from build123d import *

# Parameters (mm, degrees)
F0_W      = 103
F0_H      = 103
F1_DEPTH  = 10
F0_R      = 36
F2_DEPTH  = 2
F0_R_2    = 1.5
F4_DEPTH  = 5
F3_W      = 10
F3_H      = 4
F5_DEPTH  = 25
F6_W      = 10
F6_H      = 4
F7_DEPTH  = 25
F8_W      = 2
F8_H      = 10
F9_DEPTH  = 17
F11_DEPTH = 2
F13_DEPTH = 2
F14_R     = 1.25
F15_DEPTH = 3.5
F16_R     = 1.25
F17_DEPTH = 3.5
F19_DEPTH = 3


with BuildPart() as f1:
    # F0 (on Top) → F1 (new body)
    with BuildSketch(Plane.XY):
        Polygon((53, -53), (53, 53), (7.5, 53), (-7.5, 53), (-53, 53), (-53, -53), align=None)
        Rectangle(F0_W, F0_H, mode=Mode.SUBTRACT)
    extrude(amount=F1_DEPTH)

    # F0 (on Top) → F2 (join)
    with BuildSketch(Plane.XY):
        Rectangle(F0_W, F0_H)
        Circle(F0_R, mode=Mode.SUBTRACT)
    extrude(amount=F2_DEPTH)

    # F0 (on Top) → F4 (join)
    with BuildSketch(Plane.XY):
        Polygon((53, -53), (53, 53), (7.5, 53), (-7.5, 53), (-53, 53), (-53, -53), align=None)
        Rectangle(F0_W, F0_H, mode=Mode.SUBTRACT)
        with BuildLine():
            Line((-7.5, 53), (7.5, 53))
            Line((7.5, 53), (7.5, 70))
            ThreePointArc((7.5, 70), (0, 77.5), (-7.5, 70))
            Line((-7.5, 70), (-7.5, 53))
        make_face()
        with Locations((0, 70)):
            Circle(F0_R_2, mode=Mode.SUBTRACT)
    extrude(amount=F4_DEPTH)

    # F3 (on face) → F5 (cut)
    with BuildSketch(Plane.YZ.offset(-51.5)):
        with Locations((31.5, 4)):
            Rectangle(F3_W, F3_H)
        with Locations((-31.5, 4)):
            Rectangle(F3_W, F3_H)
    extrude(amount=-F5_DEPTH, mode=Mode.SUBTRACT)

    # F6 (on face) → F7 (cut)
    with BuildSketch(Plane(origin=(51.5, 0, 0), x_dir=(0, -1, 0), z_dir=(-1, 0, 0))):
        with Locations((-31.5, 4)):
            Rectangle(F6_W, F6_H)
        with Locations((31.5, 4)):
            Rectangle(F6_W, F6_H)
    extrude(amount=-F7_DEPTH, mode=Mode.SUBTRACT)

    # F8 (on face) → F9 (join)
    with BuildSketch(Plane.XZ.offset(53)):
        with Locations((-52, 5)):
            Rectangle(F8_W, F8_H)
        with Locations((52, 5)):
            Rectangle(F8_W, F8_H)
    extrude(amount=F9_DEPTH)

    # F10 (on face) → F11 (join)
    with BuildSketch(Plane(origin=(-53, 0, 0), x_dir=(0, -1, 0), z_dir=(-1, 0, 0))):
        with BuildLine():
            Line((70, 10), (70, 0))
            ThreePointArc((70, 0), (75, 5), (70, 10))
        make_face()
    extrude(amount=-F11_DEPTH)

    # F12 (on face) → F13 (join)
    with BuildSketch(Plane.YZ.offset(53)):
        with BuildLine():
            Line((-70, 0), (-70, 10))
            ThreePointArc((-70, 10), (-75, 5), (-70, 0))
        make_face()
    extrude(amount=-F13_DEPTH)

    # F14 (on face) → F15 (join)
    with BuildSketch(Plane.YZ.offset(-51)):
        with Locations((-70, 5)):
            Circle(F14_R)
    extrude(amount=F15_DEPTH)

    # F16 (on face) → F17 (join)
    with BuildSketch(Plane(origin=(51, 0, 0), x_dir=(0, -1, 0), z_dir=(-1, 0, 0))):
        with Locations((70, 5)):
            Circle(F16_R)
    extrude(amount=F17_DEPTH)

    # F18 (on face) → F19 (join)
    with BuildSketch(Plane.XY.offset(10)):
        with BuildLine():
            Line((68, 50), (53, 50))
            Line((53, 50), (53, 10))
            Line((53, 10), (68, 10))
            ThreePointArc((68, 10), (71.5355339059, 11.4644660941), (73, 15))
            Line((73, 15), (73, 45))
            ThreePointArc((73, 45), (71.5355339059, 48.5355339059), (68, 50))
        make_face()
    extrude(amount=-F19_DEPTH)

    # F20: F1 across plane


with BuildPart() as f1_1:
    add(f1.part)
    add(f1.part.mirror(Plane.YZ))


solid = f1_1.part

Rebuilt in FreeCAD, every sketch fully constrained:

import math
import FreeCAD as App
import Part
import Sketcher
Q = App.Units.Quantity


def add_polygon(sketch, points):
    """Adds a closed chain of lines whose ends are joined by coincident constraints."""
    first, n = sketch.GeometryCount, len(points)
    for a, b in zip(points, points[1:] + points[:1]):
        sketch.addGeometry(Part.LineSegment(App.Vector(*a, 0), App.Vector(*b, 0)), False)
    for i in range(n):
        sketch.addConstraint(Sketcher.Constraint("Coincident", first + i, 2, first + (i + 1) % n, 1))

doc = App.newDocument("Part")
params = doc.addObject("Spreadsheet::Sheet", "Params")
for row, (alias, value) in enumerate([
    ("sketch1_width", "106 mm"),
    ("sketch1_width2", "103 mm"),
    ("pad1_length", "10 mm"),
    ("sketch2_diameter", "72 mm"),
    ("sketch2_width", "103 mm"),
    ("pad2_length", "2 mm"),
    ("sketch3_diameter", "3 mm"),
    ("sketch3_radius", "7.5 mm"),
    ("sketch3_width", "106 mm"),
    ("sketch3_width2", "103 mm"),
    ("sketch3_height", "17 mm"),
    ("pad3_length", "5 mm"),
    ("sketch4_width", "10 mm"),
    ("sketch4_height", "4 mm"),
    ("pocket1_length", "25 mm"),
    ("sketch5_width", "10 mm"),
    ("sketch5_height", "4 mm"),
    ("pocket2_length", "25 mm"),
    ("sketch6_width", "2 mm"),
    ("sketch6_height", "10 mm"),
    ("pad4_length", "17 mm"),
    ("sketch7_radius", "5 mm"),
    ("pad5_length", "2 mm"),
    ("sketch8_radius", "5 mm"),
    ("pad6_length", "2 mm"),
    ("sketch9_diameter", "2.5 mm"),
    ("pad7_length", "3.5 mm"),
    ("sketch10_diameter", "2.5 mm"),
    ("pad8_length", "3.5 mm"),
    ("sketch11_radius", "5 mm"),
    ("sketch11_width", "15 mm"),
    ("sketch11_height", "40 mm"),
    ("pad9_length", "3 mm"),
], start=1):
    params.set(f"A{row}", alias)
    params.set(f"B{row}", "=" + value)
    params.setAlias(f"B{row}", alias)

body = doc.addObject("PartDesign::Body", "Body")

sketch1 = doc.addObject("Sketcher::SketchObject", "Sketch")
body.addObject(sketch1)
sketch1.AttachmentSupport = (doc.XY_Plane, [""])
sketch1.MapMode = "FlatFace"
add_polygon(sketch1, [(53, -53), (53, 53), (-53, 53), (-53, -53)])
add_polygon(sketch1, [(51.5, -51.5), (-51.5, -51.5), (-51.5, 51.5), (51.5, 51.5)])
sketch1.addConstraint([
    Sketcher.Constraint("Vertical", 0),
    Sketcher.Constraint("Horizontal", 1),
    Sketcher.Constraint("Vertical", 2),
    Sketcher.Constraint("Horizontal", 3),
    Sketcher.Constraint("Horizontal", 4),
    Sketcher.Constraint("Vertical", 5),
    Sketcher.Constraint("Horizontal", 6),
    Sketcher.Constraint("Vertical", 7),
    Sketcher.Constraint("Symmetric", 0, 2, 2, 2, -1, 1),
    Sketcher.Constraint("Symmetric", 4, 2, 6, 2, -1, 1),
    Sketcher.Constraint("Equal", 3, 0),
    Sketcher.Constraint("Equal", 6, 5),
    Sketcher.Constraint("DistanceX", 1, 2, 1, 1, Q("106 mm")),
    Sketcher.Constraint("DistanceX", 4, 2, 4, 1, Q("103 mm")),
])
sketch1.setExpression("Constraints[20]", "Params.sketch1_width")
sketch1.setExpression("Constraints[21]", "Params.sketch1_width2")
pad1 = doc.addObject("PartDesign::Pad", "Pad")
body.addObject(pad1)
pad1.Profile = sketch1
pad1.setExpression("Length", "Params.pad1_length")

sketch2 = doc.addObject("Sketcher::SketchObject", "Sketch001")
body.addObject(sketch2)
sketch2.AttachmentSupport = (doc.XY_Plane, [""])
sketch2.MapMode = "FlatFace"
add_polygon(sketch2, [(-51.5, 51.5), (-51.5, -51.5), (51.5, -51.5), (51.5, 51.5)])
sketch2.addGeometry(Part.Circle(App.Vector(0, 0, 0), App.Vector(0, 0, 1), 36), False)
sketch2.addConstraint([
    Sketcher.Constraint("Vertical", 0),
    Sketcher.Constraint("Horizontal", 1),
    Sketcher.Constraint("Vertical", 2),
    Sketcher.Constraint("Horizontal", 3),
    Sketcher.Constraint("Coincident", 4, 3, -1, 1),
    Sketcher.Constraint("Symmetric", 0, 2, 2, 2, -1, 1),
    Sketcher.Constraint("Equal", 3, 0),
    Sketcher.Constraint("Diameter", 4, Q("72 mm")),
    Sketcher.Constraint("DistanceX", 1, 1, 1, 2, Q("103 mm")),
])
sketch2.setExpression("Constraints[11]", "Params.sketch2_diameter")
sketch2.setExpression("Constraints[12]", "Params.sketch2_width")
pad2 = doc.addObject("PartDesign::Pad", "Pad001")
body.addObject(pad2)
pad2.Profile = sketch2
pad2.setExpression("Length", "Params.pad2_length")

sketch3 = doc.addObject("Sketcher::SketchObject", "Sketch002")
body.addObject(sketch3)
sketch3.AttachmentSupport = (doc.XY_Plane, [""])
sketch3.MapMode = "FlatFace"
sketch3.addGeometry(Part.LineSegment(App.Vector(53, -53, 0), App.Vector(53, 53, 0)), False)
sketch3.addGeometry(Part.LineSegment(App.Vector(53, 53, 0), App.Vector(7.5, 53, 0)), False)
sketch3.addGeometry(Part.LineSegment(App.Vector(7.5, 53, 0), App.Vector(7.5, 70, 0)), False)
sketch3.addGeometry(Part.ArcOfCircle(Part.Circle(App.Vector(0, 70, 0), App.Vector(0, 0, 1), 7.5), math.radians(0), math.radians(180)), False)
sketch3.addGeometry(Part.LineSegment(App.Vector(-7.5, 70, 0), App.Vector(-7.5, 53, 0)), False)
sketch3.addGeometry(Part.LineSegment(App.Vector(-7.5, 53, 0), App.Vector(-53, 53, 0)), False)
sketch3.addGeometry(Part.LineSegment(App.Vector(-53, 53, 0), App.Vector(-53, -53, 0)), False)
sketch3.addGeometry(Part.LineSegment(App.Vector(-53, -53, 0), App.Vector(53, -53, 0)), False)
add_polygon(sketch3, [(51.5, -51.5), (-51.5, -51.5), (-51.5, 51.5), (51.5, 51.5)])
sketch3.addGeometry(Part.Circle(App.Vector(0, 70, 0), App.Vector(0, 0, 1), 1.5), False)
sketch3.addConstraint([
    Sketcher.Constraint("Coincident", 0, 2, 1, 1),
    Sketcher.Constraint("Coincident", 1, 2, 2, 1),
    Sketcher.Constraint("Tangent", 2, 2, 3, 1),
    Sketcher.Constraint("Tangent", 3, 2, 4, 1),
    Sketcher.Constraint("Coincident", 4, 2, 5, 1),
    Sketcher.Constraint("Coincident", 5, 2, 6, 1),
    Sketcher.Constraint("Coincident", 6, 2, 7, 1),
    Sketcher.Constraint("Coincident", 7, 2, 0, 1),
    Sketcher.Constraint("Vertical", 0),
    Sketcher.Constraint("Horizontal", 1),
    Sketcher.Constraint("Vertical", 2),
    Sketcher.Constraint("Vertical", 4),
    Sketcher.Constraint("Horizontal", 5),
    Sketcher.Constraint("Vertical", 6),
    Sketcher.Constraint("Horizontal", 7),
    Sketcher.Constraint("Horizontal", 8),
    Sketcher.Constraint("Vertical", 9),
    Sketcher.Constraint("Horizontal", 10),
    Sketcher.Constraint("Vertical", 11),
    Sketcher.Constraint("Coincident", 12, 3, 3, 3),
    Sketcher.Constraint("Symmetric", 0, 2, 6, 2, -1, 1),
    Sketcher.Constraint("Symmetric", 8, 2, 10, 2, -1, 1),
    Sketcher.Constraint("Symmetric", 1, 2, 4, 2, -2),
    Sketcher.Constraint("Equal", 7, 0),
    Sketcher.Constraint("Equal", 10, 9),
    Sketcher.Constraint("Diameter", 12, Q("3 mm")),
    Sketcher.Constraint("Radius", 3, Q("7.5 mm")),
    Sketcher.Constraint("DistanceX", 7, 1, 7, 2, Q("106 mm")),
    Sketcher.Constraint("DistanceX", 8, 2, 8, 1, Q("103 mm")),
    Sketcher.Constraint("DistanceY", 2, 1, 2, 2, Q("17 mm")),
])
sketch3.setExpression("Constraints[29]", "Params.sketch3_diameter")
sketch3.setExpression("Constraints[30]", "Params.sketch3_radius")
sketch3.setExpression("Constraints[31]", "Params.sketch3_width")
sketch3.setExpression("Constraints[32]", "Params.sketch3_width2")
sketch3.setExpression("Constraints[33]", "Params.sketch3_height")
pad3 = doc.addObject("PartDesign::Pad", "Pad002")
body.addObject(pad3)
pad3.Profile = sketch3
pad3.setExpression("Length", "Params.pad3_length")

sketch4 = doc.addObject("Sketcher::SketchObject", "Sketch003")
body.addObject(sketch4)
sketch4.AttachmentSupport = (doc.YZ_Plane, [""])
sketch4.MapMode = "FlatFace"
sketch4.AttachmentOffset = App.Placement(App.Vector(0, 0, -51.5), App.Rotation())
add_polygon(sketch4, [(26.5, 6), (26.5, 2), (36.5, 2), (36.5, 6)])
add_polygon(sketch4, [(-36.5, 6), (-36.5, 2), (-26.5, 2), (-26.5, 6)])
sketch4.addConstraint([
    Sketcher.Constraint("Vertical", 0),
    Sketcher.Constraint("Horizontal", 1),
    Sketcher.Constraint("Vertical", 2),
    Sketcher.Constraint("Horizontal", 3),
    Sketcher.Constraint("Vertical", 4),
    Sketcher.Constraint("Horizontal", 5),
    Sketcher.Constraint("Vertical", 6),
    Sketcher.Constraint("Horizontal", 7),
    Sketcher.Constraint("Symmetric", 1, 2, 4, 2, -2),
    Sketcher.Constraint("Symmetric", 3, 2, 6, 2, -2),
    Sketcher.Constraint("DistanceX", 1, 1, 1, 2, Q("10 mm")),
    Sketcher.Constraint("DistanceY", 0, 2, 0, 1, Q("4 mm")),
    Sketcher.Constraint("DistanceY", -1, 1, 0, 2, Q("2 mm")),
    Sketcher.Constraint("DistanceX", 4, 2, 0, 2, Q("63 mm")),
])
sketch4.setExpression("Constraints[18]", "Params.sketch4_width")
sketch4.setExpression("Constraints[19]", "Params.sketch4_height")
pocket1 = doc.addObject("PartDesign::Pocket", "Pocket")
body.addObject(pocket1)
pocket1.Profile = sketch4
pocket1.setExpression("Length", "Params.pocket1_length")

sketch5 = doc.addObject("Sketcher::SketchObject", "Sketch004")
body.addObject(sketch5)
sketch5.AttachmentSupport = (doc.YZ_Plane, [""])
sketch5.MapMode = "FlatFace"
sketch5.AttachmentOffset = App.Placement(App.Vector(0, 0, 51.5), App.Rotation())
add_polygon(sketch5, [(36.5, 6), (36.5, 2), (26.5, 2), (26.5, 6)])
add_polygon(sketch5, [(-26.5, 6), (-26.5, 2), (-36.5, 2), (-36.5, 6)])
sketch5.addConstraint([
    Sketcher.Constraint("Vertical", 0),
    Sketcher.Constraint("Horizontal", 1),
    Sketcher.Constraint("Vertical", 2),
    Sketcher.Constraint("Horizontal", 3),
    Sketcher.Constraint("Vertical", 4),
    Sketcher.Constraint("Horizontal", 5),
    Sketcher.Constraint("Vertical", 6),
    Sketcher.Constraint("Horizontal", 7),
    Sketcher.Constraint("Symmetric", 1, 2, 4, 2, -2),
    Sketcher.Constraint("Symmetric", 3, 2, 6, 2, -2),
    Sketcher.Constraint("DistanceX", 1, 2, 1, 1, Q("10 mm")),
    Sketcher.Constraint("DistanceY", 0, 2, 0, 1, Q("4 mm")),
    Sketcher.Constraint("DistanceY", -1, 1, 0, 2, Q("2 mm")),
    Sketcher.Constraint("DistanceX", 4, 2, 1, 2, Q("53 mm")),
])
sketch5.setExpression("Constraints[18]", "Params.sketch5_width")
sketch5.setExpression("Constraints[19]", "Params.sketch5_height")
pocket2 = doc.addObject("PartDesign::Pocket", "Pocket001")
body.addObject(pocket2)
pocket2.Profile = sketch5
pocket2.setExpression("Length", "Params.pocket2_length")
pocket2.Reversed = True

sketch6 = doc.addObject("Sketcher::SketchObject", "Sketch005")
body.addObject(sketch6)
sketch6.AttachmentSupport = (doc.XZ_Plane, [""])
sketch6.MapMode = "FlatFace"
sketch6.AttachmentOffset = App.Placement(App.Vector(0, 0, 53), App.Rotation())
add_polygon(sketch6, [(-53, 10), (-53, 0), (-51, 0), (-51, 10)])
add_polygon(sketch6, [(51, 10), (51, 0), (53, 0), (53, 10)])
sketch6.addConstraint([
    Sketcher.Constraint("Vertical", 0),
    Sketcher.Constraint("Horizontal", 1),
    Sketcher.Constraint("Vertical", 2),
    Sketcher.Constraint("Horizontal", 3),
    Sketcher.Constraint("Vertical", 4),
    Sketcher.Constraint("Horizontal", 5),
    Sketcher.Constraint("Vertical", 6),
    Sketcher.Constraint("Horizontal", 7),
    Sketcher.Constraint("Symmetric", 1, 2, 4, 2, -1, 1),
    Sketcher.Constraint("Symmetric", 0, 2, 5, 2, -2),
    Sketcher.Constraint("Horizontal", 3, 2, 6, 2),
    Sketcher.Constraint("DistanceX", 1, 1, 1, 2, Q("2 mm")),
    Sketcher.Constraint("DistanceY", 0, 2, 0, 1, Q("10 mm")),
    Sketcher.Constraint("DistanceX", 0, 2, -1, 1, Q("53 mm")),
])
sketch6.setExpression("Constraints[19]", "Params.sketch6_width")
sketch6.setExpression("Constraints[20]", "Params.sketch6_height")
pad4 = doc.addObject("PartDesign::Pad", "Pad003")
body.addObject(pad4)
pad4.Profile = sketch6
pad4.setExpression("Length", "Params.pad4_length")

sketch7 = doc.addObject("Sketcher::SketchObject", "Sketch006")
body.addObject(sketch7)
sketch7.AttachmentSupport = (doc.YZ_Plane, [""])
sketch7.MapMode = "FlatFace"
sketch7.AttachmentOffset = App.Placement(App.Vector(0, 0, -53), App.Rotation())
sketch7.addGeometry([
    Part.LineSegment(App.Vector(-70, 10, 0), App.Vector(-70, 0, 0)),
    Part.ArcOfCircle(Part.Circle(App.Vector(-70, 5, 0), App.Vector(0, 0, 1), 5), math.radians(90), math.radians(270)),
], False)
sketch7.addConstraint([
    Sketcher.Constraint("Coincident", 0, 1, 1, 1),
    Sketcher.Constraint("Coincident", 1, 2, 0, 2),
    Sketcher.Constraint("Vertical", 0),
    Sketcher.Constraint("PointOnObject", 1, 2, -1),
    Sketcher.Constraint("Vertical", 1, 3, 0, 1),
    Sketcher.Constraint("Radius", 1, Q("5 mm")),
    Sketcher.Constraint("DistanceX", 1, 3, -1, 1, Q("70 mm")),
])
sketch7.setExpression("Constraints[5]", "Params.sketch7_radius")
pad5 = doc.addObject("PartDesign::Pad", "Pad004")
body.addObject(pad5)
pad5.Profile = sketch7
pad5.setExpression("Length", "Params.pad5_length")

sketch8 = doc.addObject("Sketcher::SketchObject", "Sketch007")
body.addObject(sketch8)
sketch8.AttachmentSupport = (doc.YZ_Plane, [""])
sketch8.MapMode = "FlatFace"
sketch8.AttachmentOffset = App.Placement(App.Vector(0, 0, 53), App.Rotation())
sketch8.addGeometry([
    Part.LineSegment(App.Vector(-70, 0, 0), App.Vector(-70, 10, 0)),
    Part.ArcOfCircle(Part.Circle(App.Vector(-70, 5, 0), App.Vector(0, 0, 1), 5), math.radians(90), math.radians(270)),
], False)
sketch8.addConstraint([
    Sketcher.Constraint("Coincident", 0, 1, 1, 2),
    Sketcher.Constraint("Coincident", 1, 1, 0, 2),
    Sketcher.Constraint("Vertical", 0),
    Sketcher.Constraint("PointOnObject", 0, 1, -1),
    Sketcher.Constraint("Vertical", 1, 3, 0, 1),
    Sketcher.Constraint("Radius", 1, Q("5 mm")),
    Sketcher.Constraint("DistanceX", 1, 3, -1, 1, Q("70 mm")),
])
sketch8.setExpression("Constraints[5]", "Params.sketch8_radius")
pad6 = doc.addObject("PartDesign::Pad", "Pad005")
body.addObject(pad6)
pad6.Profile = sketch8
pad6.setExpression("Length", "Params.pad6_length")
pad6.Reversed = True

sketch9 = doc.addObject("Sketcher::SketchObject", "Sketch008")
body.addObject(sketch9)
sketch9.AttachmentSupport = (doc.YZ_Plane, [""])
sketch9.MapMode = "FlatFace"
sketch9.AttachmentOffset = App.Placement(App.Vector(0, 0, -51), App.Rotation())
sketch9.addGeometry(Part.Circle(App.Vector(-70, 5, 0), App.Vector(0, 0, 1), 1.25), False)
sketch9.addConstraint([
    Sketcher.Constraint("Diameter", 0, Q("2.5 mm")),
    Sketcher.Constraint("DistanceX", 0, 3, -1, 1, Q("70 mm")),
    Sketcher.Constraint("DistanceY", -1, 1, 0, 3, Q("5 mm")),
])
sketch9.setExpression("Constraints[0]", "Params.sketch9_diameter")
pad7 = doc.addObject("PartDesign::Pad", "Pad006")
body.addObject(pad7)
pad7.Profile = sketch9
pad7.setExpression("Length", "Params.pad7_length")

sketch10 = doc.addObject("Sketcher::SketchObject", "Sketch009")
body.addObject(sketch10)
sketch10.AttachmentSupport = (doc.YZ_Plane, [""])
sketch10.MapMode = "FlatFace"
sketch10.AttachmentOffset = App.Placement(App.Vector(0, 0, 51), App.Rotation())
sketch10.addGeometry(Part.Circle(App.Vector(-70, 5, 0), App.Vector(0, 0, 1), 1.25), False)
sketch10.addConstraint([
    Sketcher.Constraint("Diameter", 0, Q("2.5 mm")),
    Sketcher.Constraint("DistanceX", 0, 3, -1, 1, Q("70 mm")),
    Sketcher.Constraint("DistanceY", -1, 1, 0, 3, Q("5 mm")),
])
sketch10.setExpression("Constraints[0]", "Params.sketch10_diameter")
pad8 = doc.addObject("PartDesign::Pad", "Pad007")
body.addObject(pad8)
pad8.Profile = sketch10
pad8.setExpression("Length", "Params.pad8_length")
pad8.Reversed = True

sketch11 = doc.addObject("Sketcher::SketchObject", "Sketch010")
body.addObject(sketch11)
sketch11.AttachmentSupport = (doc.XY_Plane, [""])
sketch11.MapMode = "FlatFace"
sketch11.AttachmentOffset = App.Placement(App.Vector(0, 0, 10), App.Rotation())
sketch11.addGeometry([
    Part.LineSegment(App.Vector(68, 50, 0), App.Vector(53, 50, 0)),
    Part.LineSegment(App.Vector(53, 50, 0), App.Vector(53, 10, 0)),
    Part.LineSegment(App.Vector(53, 10, 0), App.Vector(68, 10, 0)),
    Part.ArcOfCircle(Part.Circle(App.Vector(68, 15, 0), App.Vector(0, 0, 1), 5), math.radians(-90), math.radians(0)),
    Part.LineSegment(App.Vector(73, 15, 0), App.Vector(73, 45, 0)),
    Part.ArcOfCircle(Part.Circle(App.Vector(68, 45, 0), App.Vector(0, 0, 1), 5), math.radians(0), math.radians(90)),
], False)
sketch11.addConstraint([
    Sketcher.Constraint("Coincident", 0, 2, 1, 1),
    Sketcher.Constraint("Coincident", 1, 2, 2, 1),
    Sketcher.Constraint("Tangent", 2, 2, 3, 1),
    Sketcher.Constraint("Tangent", 3, 2, 4, 1),
    Sketcher.Constraint("Tangent", 4, 2, 5, 1),
    Sketcher.Constraint("Tangent", 5, 2, 0, 1),
    Sketcher.Constraint("Horizontal", 0),
    Sketcher.Constraint("Vertical", 1),
    Sketcher.Constraint("Horizontal", 2),
    Sketcher.Constraint("Vertical", 4),
    Sketcher.Constraint("Equal", 3, 5),
    Sketcher.Constraint("Radius", 3, Q("5 mm")),
    Sketcher.Constraint("DistanceX", 0, 2, 0, 1, Q("15 mm")),
    Sketcher.Constraint("DistanceY", 1, 2, 1, 1, Q("40 mm")),
    Sketcher.Constraint("DistanceX", -1, 1, 3, 3, Q("68 mm")),
    Sketcher.Constraint("DistanceY", -1, 1, 3, 3, Q("15 mm")),
])
sketch11.setExpression("Constraints[11]", "Params.sketch11_radius")
sketch11.setExpression("Constraints[12]", "Params.sketch11_width")
sketch11.setExpression("Constraints[13]", "Params.sketch11_height")
pad9 = doc.addObject("PartDesign::Pad", "Pad008")
body.addObject(pad9)
pad9.Profile = sketch11
pad9.setExpression("Length", "Params.pad9_length")
pad9.Reversed = True
body2 = doc.addObject("PartDesign::Body", "Body001")
doc.recompute()

body2.BaseFeature = body
doc.recompute()

mirroring = doc.addObject("Part::Mirroring", "Mirroring")
mirroring.Source = body
mirroring.Base = App.Vector(0, 0, 0)
mirroring.Normal = App.Vector(1, 0, 0)
body3 = doc.addObject("PartDesign::Body", "Body002")
body3.BaseFeature = mirroring
boolean = doc.addObject("PartDesign::Boolean", "Boolean")
body2.addObject(boolean)
boolean.Type = "Fuse"
boolean.addObjects([body3])
doc.recompute()
mirroring.Visibility = False

doc.recompute()
